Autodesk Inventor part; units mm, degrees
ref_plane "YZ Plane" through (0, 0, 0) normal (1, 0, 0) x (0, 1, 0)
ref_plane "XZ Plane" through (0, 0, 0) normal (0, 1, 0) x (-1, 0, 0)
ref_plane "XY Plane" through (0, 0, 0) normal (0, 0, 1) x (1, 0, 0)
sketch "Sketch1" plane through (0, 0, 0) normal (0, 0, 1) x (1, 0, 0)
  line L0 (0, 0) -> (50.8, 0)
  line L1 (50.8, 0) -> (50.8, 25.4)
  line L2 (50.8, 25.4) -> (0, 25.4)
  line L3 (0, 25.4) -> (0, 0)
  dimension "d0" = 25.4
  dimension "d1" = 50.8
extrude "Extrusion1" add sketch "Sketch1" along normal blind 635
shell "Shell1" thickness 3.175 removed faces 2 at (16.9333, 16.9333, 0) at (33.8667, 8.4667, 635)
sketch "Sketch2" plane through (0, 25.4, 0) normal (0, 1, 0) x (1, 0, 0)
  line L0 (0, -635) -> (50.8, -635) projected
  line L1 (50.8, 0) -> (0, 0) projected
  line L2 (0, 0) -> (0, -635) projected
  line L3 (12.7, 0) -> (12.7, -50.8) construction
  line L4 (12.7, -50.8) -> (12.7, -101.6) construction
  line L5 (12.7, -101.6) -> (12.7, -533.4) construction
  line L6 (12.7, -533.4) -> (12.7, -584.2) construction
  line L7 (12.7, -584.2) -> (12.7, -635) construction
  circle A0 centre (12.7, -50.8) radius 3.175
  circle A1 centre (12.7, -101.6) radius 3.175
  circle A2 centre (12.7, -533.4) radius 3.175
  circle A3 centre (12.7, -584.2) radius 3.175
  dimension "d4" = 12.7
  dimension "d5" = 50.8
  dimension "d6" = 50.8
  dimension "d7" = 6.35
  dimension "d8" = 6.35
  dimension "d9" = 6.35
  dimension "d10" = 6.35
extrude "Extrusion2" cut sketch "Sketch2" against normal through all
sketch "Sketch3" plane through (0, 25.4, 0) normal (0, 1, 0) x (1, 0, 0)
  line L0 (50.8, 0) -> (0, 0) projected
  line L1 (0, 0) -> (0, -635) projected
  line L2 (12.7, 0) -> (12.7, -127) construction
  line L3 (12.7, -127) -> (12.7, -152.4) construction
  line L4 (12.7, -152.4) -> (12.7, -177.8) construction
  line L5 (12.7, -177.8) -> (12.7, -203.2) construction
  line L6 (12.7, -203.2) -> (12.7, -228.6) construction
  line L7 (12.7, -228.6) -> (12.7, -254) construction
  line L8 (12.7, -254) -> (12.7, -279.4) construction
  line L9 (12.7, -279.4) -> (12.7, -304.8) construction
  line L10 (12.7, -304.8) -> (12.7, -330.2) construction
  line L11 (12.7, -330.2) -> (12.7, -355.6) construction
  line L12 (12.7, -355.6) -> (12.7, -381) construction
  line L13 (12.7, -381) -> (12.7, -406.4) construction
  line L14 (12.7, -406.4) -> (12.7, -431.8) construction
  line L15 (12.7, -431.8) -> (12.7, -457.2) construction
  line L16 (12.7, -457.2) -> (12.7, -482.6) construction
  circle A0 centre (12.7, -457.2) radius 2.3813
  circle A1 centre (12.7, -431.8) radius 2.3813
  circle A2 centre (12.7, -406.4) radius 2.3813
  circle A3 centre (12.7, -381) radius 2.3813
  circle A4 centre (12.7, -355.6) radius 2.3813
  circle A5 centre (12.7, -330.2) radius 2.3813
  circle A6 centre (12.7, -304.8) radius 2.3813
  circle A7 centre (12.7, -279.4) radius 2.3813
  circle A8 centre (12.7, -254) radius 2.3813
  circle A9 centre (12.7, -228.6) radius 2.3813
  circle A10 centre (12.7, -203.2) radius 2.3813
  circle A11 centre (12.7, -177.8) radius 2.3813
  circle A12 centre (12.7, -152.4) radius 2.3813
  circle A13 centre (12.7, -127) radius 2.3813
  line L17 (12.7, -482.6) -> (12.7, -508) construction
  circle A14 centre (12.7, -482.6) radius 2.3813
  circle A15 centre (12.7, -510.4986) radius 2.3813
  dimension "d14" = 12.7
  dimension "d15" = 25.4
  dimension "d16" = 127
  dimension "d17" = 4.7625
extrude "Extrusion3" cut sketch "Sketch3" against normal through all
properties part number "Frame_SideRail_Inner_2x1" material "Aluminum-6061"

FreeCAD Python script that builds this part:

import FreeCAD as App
import Part
import Sketcher
from FreeCAD import Vector
Q = App.Units.Quantity


def faces_at(feature, points):
    """Names of the faces that lie closest to the given points."""
    faces = feature.Shape.Faces
    near = lambda p: min(range(len(faces)), key=lambda i: faces[i].distToShape(Part.Vertex(*p))[0])
    return sorted({f"Face{near(p) + 1}" for p in points})

doc = App.newDocument("Part")
body = doc.addObject("PartDesign::Body", "Body")

# Sketch on XY plane
sketch1 = body.newObject("Sketcher::SketchObject", "Sketch")
sketch1.AttachmentSupport = (doc.getObject("XY_Plane"), [""])
sketch1.MapMode = "FlatFace"
sketch1.addGeometry(Part.LineSegment(Vector(0, 25, 0), Vector(0, 0, 0)), False)
sketch1.addGeometry(Part.LineSegment(Vector(0, 0, 0), Vector(51, 0, 0)), False)
sketch1.addGeometry(Part.LineSegment(Vector(51, 0, 0), Vector(51, 25, 0)), False)
sketch1.addGeometry(Part.LineSegment(Vector(51, 25, 0), Vector(0, 25, 0)), False)
sketch1.addConstraint(Sketcher.Constraint("Coincident", 0, 2, 1, 1))
sketch1.addConstraint(Sketcher.Constraint("Coincident", 1, 2, 2, 1))
sketch1.addConstraint(Sketcher.Constraint("Coincident", 2, 2, 3, 1))
sketch1.addConstraint(Sketcher.Constraint("Coincident", 3, 2, 0, 1))
sketch1.addConstraint(Sketcher.Constraint("Vertical", 0))
sketch1.addConstraint(Sketcher.Constraint("Horizontal", 1))
sketch1.addConstraint(Sketcher.Constraint("Vertical", 2))
sketch1.addConstraint(Sketcher.Constraint("Horizontal", 3))
sketch1.addConstraint(Sketcher.Constraint("Coincident", 0, 2, -1, 1))
sketch1.addConstraint(Sketcher.Constraint("DistanceX", 1, 1, 1, 2, Q("2 in")))
sketch1.addConstraint(Sketcher.Constraint("DistanceY", 0, 2, 0, 1, Q("1 in")))
pad1 = body.newObject("PartDesign::Pad", "Pad")
pad1.Profile = sketch1
pad1.Length = Q("25 in")
doc.recompute()

thickness = body.newObject("PartDesign::Thickness", "Thickness")
thickness.Base = (pad1, faces_at(pad1, [(16.933, 16.933, 0), (33.867, 8.467, 635)]))
thickness.Value = Q("0.125 in")
thickness.Reversed = True
thickness.Join = "Intersection"

# Sketch on XZ plane
sketch2 = body.newObject("Sketcher::SketchObject", "Sketch001")
sketch2.AttachmentSupport = (doc.getObject("XZ_Plane"), [""])
sketch2.MapMode = "FlatFace"
sketch2.AttachmentOffset = App.Placement(Vector(0, 0, -1 * 25.4), App.Rotation())
sketch2.addGeometry(Part.Circle(Vector(12.7, 50.8, 0), Vector(0, 0, 1), 3.2), False)
sketch2.addGeometry(Part.Circle(Vector(12.7, 101.6, 0), Vector(0, 0, 1), 3.2), False)
sketch2.addGeometry(Part.Circle(Vector(12.7, 533.4, 0), Vector(0, 0, 1), 3.2), False)
sketch2.addGeometry(Part.Circle(Vector(12.7, 584.2, 0), Vector(0, 0, 1), 3.2), False)
sketch2.addConstraint(Sketcher.Constraint("Equal", 0, 1))
sketch2.addConstraint(Sketcher.Constraint("Equal", 1, 2))
sketch2.addConstraint(Sketcher.Constraint("Equal", 2, 3))
sketch2.addConstraint(Sketcher.Constraint("Vertical", 0, 3, 1, 3))
sketch2.addConstraint(Sketcher.Constraint("Vertical", 1, 3, 2, 3))
sketch2.addConstraint(Sketcher.Constraint("Vertical", 2, 3, 3, 3))
sketch2.addConstraint(Sketcher.Constraint("Diameter", 0, Q("0.25 in")))
sketch2.addConstraint(Sketcher.Constraint("DistanceY", -1, 1, 0, 3, Q("2 in")))
sketch2.addConstraint(Sketcher.Constraint("DistanceY", 0, 3, 1, 3, Q("2 in")))
sketch2.addConstraint(Sketcher.Constraint("DistanceY", 2, 3, 3, 3, Q("2 in")))
sketch2.addConstraint(Sketcher.Constraint("DistanceX", -1, 1, 0, 3, Q("0.5 in")))
sketch2.addConstraint(Sketcher.Constraint("DistanceY", -1, 1, 2, 3, Q("21 in")))
pocket1 = body.newObject("PartDesign::Pocket", "Pocket")
pocket1.Profile = sketch2
pocket1.Type = "ThroughAll"
pocket1.Reversed = True

# Sketch on XZ plane
sketch3 = body.newObject("Sketcher::SketchObject", "Sketch002")
sketch3.AttachmentSupport = (doc.getObject("XZ_Plane"), [""])
sketch3.MapMode = "FlatFace"
sketch3.AttachmentOffset = App.Placement(Vector(0, 0, -1 * 25.4), App.Rotation())
sketch3.addGeometry(Part.Circle(Vector(12.7, 457.2, 0), Vector(0, 0, 1), 2.4), False)
sketch3.addGeometry(Part.Circle(Vector(12.7, 431.8, 0), Vector(0, 0, 1), 2.4), False)
sketch3.addGeometry(Part.Circle(Vector(12.7, 406.4, 0), Vector(0, 0, 1), 2.4), False)
sketch3.addGeometry(Part.Circle(Vector(12.7, 381, 0), Vector(0, 0, 1), 2.4), False)
sketch3.addGeometry(Part.Circle(Vector(12.7, 355.6, 0), Vector(0, 0, 1), 2.4), False)
sketch3.addGeometry(Part.Circle(Vector(12.7, 330.2, 0), Vector(0, 0, 1), 2.4), False)
sketch3.addGeometry(Part.Circle(Vector(12.7, 304.8, 0), Vector(0, 0, 1), 2.4), False)
sketch3.addGeometry(Part.Circle(Vector(12.7, 279.4, 0), Vector(0, 0, 1), 2.4), False)
sketch3.addGeometry(Part.Circle(Vector(12.7, 254, 0), Vector(0, 0, 1), 2.4), False)
sketch3.addGeometry(Part.Circle(Vector(12.7, 228.6, 0), Vector(0, 0, 1), 2.4), False)
sketch3.addGeometry(Part.Circle(Vector(12.7, 203.2, 0), Vector(0, 0, 1), 2.4), False)
sketch3.addGeometry(Part.Circle(Vector(12.7, 177.8, 0), Vector(0, 0, 1), 2.4), False)
sketch3.addGeometry(Part.Circle(Vector(12.7, 152.4, 0), Vector(0, 0, 1), 2.4), False)
sketch3.addGeometry(Part.Circle(Vector(12.7, 127, 0), Vector(0, 0, 1), 2.4), False)
sketch3.addGeometry(Part.Circle(Vector(12.7, 482.6, 0), Vector(0, 0, 1), 2.4), False)
sketch3.addGeometry(Part.Circle(Vector(12.7, 510.5, 0), Vector(0, 0, 1), 2.4), False)
sketch3.addConstraint(Sketcher.Constraint("Equal", 0, 1))
sketch3.addConstraint(Sketcher.Constraint("Equal", 1, 2))
sketch3.addConstraint(Sketcher.Constraint("Equal", 2, 3))
sketch3.addConstraint(Sketcher.Constraint("Equal", 3, 4))
sketch3.addConstraint(Sketcher.Constraint("Equal", 4, 5))
sketch3.addConstraint(Sketcher.Constraint("Equal", 5, 6))
sketch3.addConstraint(Sketcher.Constraint("Equal", 6, 7))
sketch3.addConstraint(Sketcher.Constraint("Equal", 7, 8))
sketch3.addConstraint(Sketcher.Constraint("Equal", 8, 9))
sketch3.addConstraint(Sketcher.Constraint("Equal", 9, 10))
sketch3.addConstraint(Sketcher.Constraint("Equal", 10, 11))
sketch3.addConstraint(Sketcher.Constraint("Equal", 11, 12))
sketch3.addConstraint(Sketcher.Constraint("Equal", 12, 13))
sketch3.addConstraint(Sketcher.Constraint("Equal", 13, 14))
sketch3.addConstraint(Sketcher.Constraint("Equal", 14, 15))
sketch3.addConstraint(Sketcher.Constraint("Vertical", 0, 3, 1, 3))
sketch3.addConstraint(Sketcher.Constraint("Vertical", 1, 3, 2, 3))
sketch3.addConstraint(Sketcher.Constraint("Vertical", 2, 3, 3, 3))
sketch3.addConstraint(Sketcher.Constraint("Vertical", 3, 3, 4, 3))
sketch3.addConstraint(Sketcher.Constraint("Vertical", 4, 3, 5, 3))
sketch3.addConstraint(Sketcher.Constraint("Vertical", 5, 3, 6, 3))
sketch3.addConstraint(Sketcher.Constraint("Vertical", 6, 3, 7, 3))
sketch3.addConstraint(Sketcher.Constraint("Vertical", 7, 3, 8, 3))
sketch3.addConstraint(Sketcher.Constraint("Vertical", 8, 3, 9, 3))
sketch3.addConstraint(Sketcher.Constraint("Vertical", 9, 3, 10, 3))
sketch3.addConstraint(Sketcher.Constraint("Vertical", 10, 3, 11, 3))
sketch3.addConstraint(Sketcher.Constraint("Vertical", 11, 3, 12, 3))
sketch3.addConstraint(Sketcher.Constraint("Vertical", 12, 3, 13, 3))
sketch3.addConstraint(Sketcher.Constraint("Vertical", 13, 3, 14, 3))
sketch3.addConstraint(Sketcher.Constraint("Vertical", 14, 3, 15, 3))
sketch3.addConstraint(Sketcher.Constraint("Diameter", 0, Q("0.1875 in")))
sketch3.addConstraint(Sketcher.Constraint("DistanceY", -1, 1, 13, 3, Q("5 in")))
sketch3.addConstraint(Sketcher.Constraint("DistanceY", 1, 3, 0, 3, Q("1 in")))
sketch3.addConstraint(Sketcher.Constraint("DistanceY", 2, 3, 1, 3, Q("1 in")))
sketch3.addConstraint(Sketcher.Constraint("DistanceY", 3, 3, 2, 3, Q("1 in")))
sketch3.addConstraint(Sketcher.Constraint("DistanceY", 4, 3, 3, 3, Q("1 in")))
sketch3.addConstraint(Sketcher.Constraint("DistanceY", 5, 3, 4, 3, Q("1 in")))
sketch3.addConstraint(Sketcher.Constraint("DistanceY", 6, 3, 5, 3, Q("1 in")))
sketch3.addConstraint(Sketcher.Constraint("DistanceY", 7, 3, 6, 3, Q("1 in")))
sketch3.addConstraint(Sketcher.Constraint("DistanceY", 8, 3, 7, 3, Q("1 in")))
sketch3.addConstraint(Sketcher.Constraint("DistanceY", 9, 3, 8, 3, Q("1 in")))
sketch3.addConstraint(Sketcher.Constraint("DistanceY", 10, 3, 9, 3, Q("1 in")))
sketch3.addConstraint(Sketcher.Constraint("DistanceY", 11, 3, 10, 3, Q("1 in")))
sketch3.addConstraint(Sketcher.Constraint("DistanceY", 12, 3, 11, 3, Q("1 in")))
sketch3.addConstraint(Sketcher.Constraint("DistanceY", 13, 3, 12, 3, Q("1 in")))
sketch3.addConstraint(Sketcher.Constraint("DistanceY", 0, 3, 14, 3, Q("1 in")))
sketch3.addConstraint(Sketcher.Constraint("DistanceX", -1, 1, 0, 3, Q("0.5 in")))
sketch3.addConstraint(Sketcher.Constraint("DistanceY", -1, 1, 15, 3, Q("510.4986 mm")))
pocket2 = body.newObject("PartDesign::Pocket", "Pocket001")
pocket2.Profile = sketch3
pocket2.Type = "ThroughAll"
pocket2.Reversed = True

doc.recompute()
